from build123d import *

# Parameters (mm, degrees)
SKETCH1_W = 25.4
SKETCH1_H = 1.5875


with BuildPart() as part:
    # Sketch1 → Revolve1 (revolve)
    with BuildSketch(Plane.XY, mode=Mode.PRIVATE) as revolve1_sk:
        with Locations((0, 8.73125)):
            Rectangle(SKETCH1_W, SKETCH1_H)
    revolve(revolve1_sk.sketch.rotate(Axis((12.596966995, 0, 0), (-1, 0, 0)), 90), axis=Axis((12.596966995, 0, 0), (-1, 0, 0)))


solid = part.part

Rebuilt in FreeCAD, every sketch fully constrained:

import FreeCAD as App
import Part
import Sketcher

V = App.Vector
Q = App.Units.Quantity


def add_polygon(sketch, points):
    """Adds a closed chain of lines whose ends are joined by coincident constraints."""
    first, n = sketch.GeometryCount, len(points)
    for a, b in zip(points, points[1:] + points[:1]):
        sketch.addGeometry(Part.LineSegment(App.Vector(*a, 0), App.Vector(*b, 0)), False)
    for i in range(n):
        sketch.addConstraint(Sketcher.Constraint("Coincident", first + i, 2, first + (i + 1) % n, 1))

doc = App.newDocument("Part")
params = doc.addObject("Spreadsheet::Sheet", "Params")
for row, (alias, value) in enumerate([
    ("sketch1_width", "1 in"),
    ("sketch1_height", "0.0625 in"),
    ("revolution_angle", "360 deg"),
], start=1):
    params.set(f"A{row}", alias)
    params.set(f"B{row}", "=" + value)
    params.setAlias(f"B{row}", alias)

body = doc.addObject("PartDesign::Body", "Body")

# Sketch on XY plane
sketch1 = body.newObject("Sketcher::SketchObject", "Sketch")
sketch1.AttachmentSupport = (doc.getObject("XY_Plane"), [""])
sketch1.MapMode = "FlatFace"
add_polygon(sketch1, [(-12.7, 9.525), (-12.7, 7.9375), (12.7, 7.9375), (12.7, 9.525)])  # lines 0-3
sketch1.addConstraint([
    Sketcher.Constraint("Vertical", 0),
    Sketcher.Constraint("Horizontal", 1),
    Sketcher.Constraint("Vertical", 2),
    Sketcher.Constraint("Horizontal", 3),
    Sketcher.Constraint("DistanceX", 1, 1, 1, 2, Q("1 in")),
    Sketcher.Constraint("DistanceX", 0, 2, -1, 1, Q("0.5 in")),
    Sketcher.Constraint("DistanceY", 0, 2, 0, 1, Q("0.0625 in")),
    Sketcher.Constraint("DistanceY", -1, 1, 0, 2, Q("0.3125 in")),
])
sketch1.setExpression("Constraints[8]", "Params.sketch1_width")
sketch1.setExpression("Constraints[10]", "Params.sketch1_height")
revolution = body.newObject("PartDesign::Revolution", "Revolution")
revolution.Profile = sketch1
revolution.ReferenceAxis = (sketch1, ["H_Axis"])
revolution.setExpression("Angle", "Params.revolution_angle")

doc.recompute()
